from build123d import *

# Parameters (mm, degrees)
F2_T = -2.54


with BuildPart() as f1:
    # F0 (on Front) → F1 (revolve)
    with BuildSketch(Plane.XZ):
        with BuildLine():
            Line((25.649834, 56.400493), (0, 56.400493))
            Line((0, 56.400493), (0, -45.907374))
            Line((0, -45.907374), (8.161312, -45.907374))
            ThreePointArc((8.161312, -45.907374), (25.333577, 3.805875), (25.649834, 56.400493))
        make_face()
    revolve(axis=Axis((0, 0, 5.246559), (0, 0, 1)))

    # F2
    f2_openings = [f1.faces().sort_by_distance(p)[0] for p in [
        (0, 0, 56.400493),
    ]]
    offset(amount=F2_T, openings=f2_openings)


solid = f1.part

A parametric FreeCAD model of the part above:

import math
import FreeCAD as App
import Part
import Sketcher
from FreeCAD import Vector


def faces_at(feature, points):
    """Names of the faces that lie closest to the given points."""
    faces = feature.Shape.Faces
    near = lambda p: min(range(len(faces)), key=lambda i: faces[i].distToShape(Part.Vertex(*p))[0])
    return sorted({f"Face{near(p) + 1}" for p in points})

doc = App.newDocument("Part")
params = doc.addObject("Spreadsheet::Sheet", "Params")
for row, (alias, value) in enumerate([
    ("revolution_angle", "360 deg"),
    ("thickness_wall", "0.1 in"),
], start=1):
    params.set(f"A{row}", alias)
    params.set(f"B{row}", "=" + value)
    params.setAlias(f"B{row}", alias)

body = doc.addObject("PartDesign::Body", "Body")

# Sketch on XZ plane
sketch1 = doc.addObject("Sketcher::SketchObject", "Sketch")
body.addObject(sketch1)
sketch1.AttachmentSupport = (doc.XZ_Plane, [""])
sketch1.MapMode = "FlatFace"
sketch1.addGeometry(Part.LineSegment(Vector(25.649834, 56.400493, 0), Vector(0, 56.400493, 0)), False)
sketch1.addGeometry(Part.LineSegment(Vector(0, 56.400493, 0), Vector(0, -45.907374, 0)), False)
sketch1.addGeometry(Part.LineSegment(Vector(0, -45.907374, 0), Vector(8.161312, -45.907374, 0)), False)
sketch1.addGeometry(Part.ArcOfCircle(Part.Circle(Vector(-134.120319, 31.062948, 0), Vector(0, 0, 1), 161.766786), math.radians(-28.412129), math.radians(9.011348)), False)
sketch1.addConstraint(Sketcher.Constraint("Coincident", 0, 2, 1, 1))
sketch1.addConstraint(Sketcher.Constraint("Coincident", 1, 2, 2, 1))
sketch1.addConstraint(Sketcher.Constraint("Coincident", 2, 2, 3, 1))
sketch1.addConstraint(Sketcher.Constraint("Coincident", 3, 2, 0, 1))
sketch1.addConstraint(Sketcher.Constraint("Horizontal", 0))
sketch1.addConstraint(Sketcher.Constraint("Vertical", 1))
sketch1.addConstraint(Sketcher.Constraint("Horizontal", 2))
sketch1.addConstraint(Sketcher.Constraint("PointOnObject", 0, 2, -2))
sketch1.addConstraint(Sketcher.Constraint("Radius", 3, 161.766786))
sketch1.addConstraint(Sketcher.Constraint("DistanceX", 0, 2, 0, 1, 25.649834))
sketch1.addConstraint(Sketcher.Constraint("DistanceX", 2, 1, 2, 2, 8.161312))
sketch1.addConstraint(Sketcher.Constraint("DistanceY", 1, 2, 1, 1, 102.307867))
sketch1.addConstraint(Sketcher.Constraint("DistanceY", -1, 1, 3, 3, 31.062948))
revolution = doc.addObject("PartDesign::Revolution", "Revolution")
body.addObject(revolution)
revolution.Profile = sketch1
revolution.ReferenceAxis = (sketch1, ["V_Axis"])
revolution.setExpression("Angle", "Params.revolution_angle")
doc.recompute()

thickness = doc.addObject("PartDesign::Thickness", "Thickness")
body.addObject(thickness)
thickness.Base = (revolution, faces_at(revolution, [(0, 0, 56.4)]))
thickness.setExpression("Value", "Params.thickness_wall")
thickness.Reversed = True
thickness.Join = "Arc"

doc.recompute()
